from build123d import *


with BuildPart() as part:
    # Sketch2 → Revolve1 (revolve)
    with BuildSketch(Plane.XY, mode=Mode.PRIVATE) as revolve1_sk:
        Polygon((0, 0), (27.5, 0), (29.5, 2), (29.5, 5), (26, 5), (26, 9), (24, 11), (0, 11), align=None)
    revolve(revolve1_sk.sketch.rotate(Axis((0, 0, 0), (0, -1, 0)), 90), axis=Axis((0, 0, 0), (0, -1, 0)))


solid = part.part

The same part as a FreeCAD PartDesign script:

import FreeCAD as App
import Part
import Sketcher

V = App.Vector
Q = App.Units.Quantity


def add_polygon(sketch, points):
    """Adds a closed chain of lines whose ends are joined by coincident constraints."""
    first, n = sketch.GeometryCount, len(points)
    for a, b in zip(points, points[1:] + points[:1]):
        sketch.addGeometry(Part.LineSegment(App.Vector(*a, 0), App.Vector(*b, 0)), False)
    for i in range(n):
        sketch.addConstraint(Sketcher.Constraint("Coincident", first + i, 2, first + (i + 1) % n, 1))

doc = App.newDocument("Part")
params = doc.addObject("Spreadsheet::Sheet", "Params")
for row, (alias, value) in enumerate([
    ("sketch1_width", "24 mm"),
    ("sketch1_height", "3 mm"),
    ("sketch1_height2", "4 mm"),
    ("sketch1_height3", "11 mm"),
    ("sketch1_width2", "27.5 mm"),
    ("revolution_angle", "360 deg"),
], start=1):
    params.set(f"A{row}", alias)
    params.set(f"B{row}", "=" + value)
    params.setAlias(f"B{row}", alias)

body = doc.addObject("PartDesign::Body", "Body")

# Sketch on XY plane
sketch1 = body.newObject("Sketcher::SketchObject", "Sketch")
sketch1.AttachmentSupport = (doc.getObject("XY_Plane"), [""])
sketch1.MapMode = "FlatFace"
add_polygon(sketch1, [(0, 0), (27.5, 0), (29.5, 2), (29.5, 5), (26, 5), (26, 9), (24, 11), (0, 11)])  # lines 0-7
sketch1.addConstraint(Sketcher.Constraint("Horizontal", 0))
sketch1.addConstraint(Sketcher.Constraint("Vertical", 2))
sketch1.addConstraint(Sketcher.Constraint("Horizontal", 3))
sketch1.addConstraint(Sketcher.Constraint("Vertical", 4))
sketch1.addConstraint(Sketcher.Constraint("Horizontal", 6))
sketch1.addConstraint(Sketcher.Constraint("Vertical", 7))
sketch1.addConstraint(Sketcher.Constraint("Coincident", 7, 2, -1, 1))
sketch1.addConstraint(Sketcher.Constraint("Perpendicular", 1, 5))
sketch1.addConstraint(Sketcher.Constraint("Equal", 1, 5))
sketch1.addConstraint(Sketcher.Constraint("DistanceX", 6, 2, 6, 1, Q("24 mm")))
sketch1.addConstraint(Sketcher.Constraint("DistanceY", 2, 1, 2, 2, Q("3 mm")))
sketch1.addConstraint(Sketcher.Constraint("DistanceY", 4, 1, 4, 2, Q("4 mm")))
sketch1.addConstraint(Sketcher.Constraint("DistanceY", 7, 2, 7, 1, Q("11 mm")))
sketch1.addConstraint(Sketcher.Constraint("Angle", 1, Q("45 deg")))
sketch1.addConstraint(Sketcher.Constraint("DistanceX", 0, 1, 0, 2, Q("27.5 mm")))
sketch1.setExpression("Constraints[17]", "Params.sketch1_width")
sketch1.setExpression("Constraints[18]", "Params.sketch1_height")
sketch1.setExpression("Constraints[19]", "Params.sketch1_height2")
sketch1.setExpression("Constraints[20]", "Params.sketch1_height3")
sketch1.setExpression("Constraints[22]", "Params.sketch1_width2")
revolution = body.newObject("PartDesign::Revolution", "Revolution")
revolution.Profile = sketch1
revolution.ReferenceAxis = (sketch1, ["V_Axis"])
revolution.setExpression("Angle", "Params.revolution_angle")

doc.recompute()
